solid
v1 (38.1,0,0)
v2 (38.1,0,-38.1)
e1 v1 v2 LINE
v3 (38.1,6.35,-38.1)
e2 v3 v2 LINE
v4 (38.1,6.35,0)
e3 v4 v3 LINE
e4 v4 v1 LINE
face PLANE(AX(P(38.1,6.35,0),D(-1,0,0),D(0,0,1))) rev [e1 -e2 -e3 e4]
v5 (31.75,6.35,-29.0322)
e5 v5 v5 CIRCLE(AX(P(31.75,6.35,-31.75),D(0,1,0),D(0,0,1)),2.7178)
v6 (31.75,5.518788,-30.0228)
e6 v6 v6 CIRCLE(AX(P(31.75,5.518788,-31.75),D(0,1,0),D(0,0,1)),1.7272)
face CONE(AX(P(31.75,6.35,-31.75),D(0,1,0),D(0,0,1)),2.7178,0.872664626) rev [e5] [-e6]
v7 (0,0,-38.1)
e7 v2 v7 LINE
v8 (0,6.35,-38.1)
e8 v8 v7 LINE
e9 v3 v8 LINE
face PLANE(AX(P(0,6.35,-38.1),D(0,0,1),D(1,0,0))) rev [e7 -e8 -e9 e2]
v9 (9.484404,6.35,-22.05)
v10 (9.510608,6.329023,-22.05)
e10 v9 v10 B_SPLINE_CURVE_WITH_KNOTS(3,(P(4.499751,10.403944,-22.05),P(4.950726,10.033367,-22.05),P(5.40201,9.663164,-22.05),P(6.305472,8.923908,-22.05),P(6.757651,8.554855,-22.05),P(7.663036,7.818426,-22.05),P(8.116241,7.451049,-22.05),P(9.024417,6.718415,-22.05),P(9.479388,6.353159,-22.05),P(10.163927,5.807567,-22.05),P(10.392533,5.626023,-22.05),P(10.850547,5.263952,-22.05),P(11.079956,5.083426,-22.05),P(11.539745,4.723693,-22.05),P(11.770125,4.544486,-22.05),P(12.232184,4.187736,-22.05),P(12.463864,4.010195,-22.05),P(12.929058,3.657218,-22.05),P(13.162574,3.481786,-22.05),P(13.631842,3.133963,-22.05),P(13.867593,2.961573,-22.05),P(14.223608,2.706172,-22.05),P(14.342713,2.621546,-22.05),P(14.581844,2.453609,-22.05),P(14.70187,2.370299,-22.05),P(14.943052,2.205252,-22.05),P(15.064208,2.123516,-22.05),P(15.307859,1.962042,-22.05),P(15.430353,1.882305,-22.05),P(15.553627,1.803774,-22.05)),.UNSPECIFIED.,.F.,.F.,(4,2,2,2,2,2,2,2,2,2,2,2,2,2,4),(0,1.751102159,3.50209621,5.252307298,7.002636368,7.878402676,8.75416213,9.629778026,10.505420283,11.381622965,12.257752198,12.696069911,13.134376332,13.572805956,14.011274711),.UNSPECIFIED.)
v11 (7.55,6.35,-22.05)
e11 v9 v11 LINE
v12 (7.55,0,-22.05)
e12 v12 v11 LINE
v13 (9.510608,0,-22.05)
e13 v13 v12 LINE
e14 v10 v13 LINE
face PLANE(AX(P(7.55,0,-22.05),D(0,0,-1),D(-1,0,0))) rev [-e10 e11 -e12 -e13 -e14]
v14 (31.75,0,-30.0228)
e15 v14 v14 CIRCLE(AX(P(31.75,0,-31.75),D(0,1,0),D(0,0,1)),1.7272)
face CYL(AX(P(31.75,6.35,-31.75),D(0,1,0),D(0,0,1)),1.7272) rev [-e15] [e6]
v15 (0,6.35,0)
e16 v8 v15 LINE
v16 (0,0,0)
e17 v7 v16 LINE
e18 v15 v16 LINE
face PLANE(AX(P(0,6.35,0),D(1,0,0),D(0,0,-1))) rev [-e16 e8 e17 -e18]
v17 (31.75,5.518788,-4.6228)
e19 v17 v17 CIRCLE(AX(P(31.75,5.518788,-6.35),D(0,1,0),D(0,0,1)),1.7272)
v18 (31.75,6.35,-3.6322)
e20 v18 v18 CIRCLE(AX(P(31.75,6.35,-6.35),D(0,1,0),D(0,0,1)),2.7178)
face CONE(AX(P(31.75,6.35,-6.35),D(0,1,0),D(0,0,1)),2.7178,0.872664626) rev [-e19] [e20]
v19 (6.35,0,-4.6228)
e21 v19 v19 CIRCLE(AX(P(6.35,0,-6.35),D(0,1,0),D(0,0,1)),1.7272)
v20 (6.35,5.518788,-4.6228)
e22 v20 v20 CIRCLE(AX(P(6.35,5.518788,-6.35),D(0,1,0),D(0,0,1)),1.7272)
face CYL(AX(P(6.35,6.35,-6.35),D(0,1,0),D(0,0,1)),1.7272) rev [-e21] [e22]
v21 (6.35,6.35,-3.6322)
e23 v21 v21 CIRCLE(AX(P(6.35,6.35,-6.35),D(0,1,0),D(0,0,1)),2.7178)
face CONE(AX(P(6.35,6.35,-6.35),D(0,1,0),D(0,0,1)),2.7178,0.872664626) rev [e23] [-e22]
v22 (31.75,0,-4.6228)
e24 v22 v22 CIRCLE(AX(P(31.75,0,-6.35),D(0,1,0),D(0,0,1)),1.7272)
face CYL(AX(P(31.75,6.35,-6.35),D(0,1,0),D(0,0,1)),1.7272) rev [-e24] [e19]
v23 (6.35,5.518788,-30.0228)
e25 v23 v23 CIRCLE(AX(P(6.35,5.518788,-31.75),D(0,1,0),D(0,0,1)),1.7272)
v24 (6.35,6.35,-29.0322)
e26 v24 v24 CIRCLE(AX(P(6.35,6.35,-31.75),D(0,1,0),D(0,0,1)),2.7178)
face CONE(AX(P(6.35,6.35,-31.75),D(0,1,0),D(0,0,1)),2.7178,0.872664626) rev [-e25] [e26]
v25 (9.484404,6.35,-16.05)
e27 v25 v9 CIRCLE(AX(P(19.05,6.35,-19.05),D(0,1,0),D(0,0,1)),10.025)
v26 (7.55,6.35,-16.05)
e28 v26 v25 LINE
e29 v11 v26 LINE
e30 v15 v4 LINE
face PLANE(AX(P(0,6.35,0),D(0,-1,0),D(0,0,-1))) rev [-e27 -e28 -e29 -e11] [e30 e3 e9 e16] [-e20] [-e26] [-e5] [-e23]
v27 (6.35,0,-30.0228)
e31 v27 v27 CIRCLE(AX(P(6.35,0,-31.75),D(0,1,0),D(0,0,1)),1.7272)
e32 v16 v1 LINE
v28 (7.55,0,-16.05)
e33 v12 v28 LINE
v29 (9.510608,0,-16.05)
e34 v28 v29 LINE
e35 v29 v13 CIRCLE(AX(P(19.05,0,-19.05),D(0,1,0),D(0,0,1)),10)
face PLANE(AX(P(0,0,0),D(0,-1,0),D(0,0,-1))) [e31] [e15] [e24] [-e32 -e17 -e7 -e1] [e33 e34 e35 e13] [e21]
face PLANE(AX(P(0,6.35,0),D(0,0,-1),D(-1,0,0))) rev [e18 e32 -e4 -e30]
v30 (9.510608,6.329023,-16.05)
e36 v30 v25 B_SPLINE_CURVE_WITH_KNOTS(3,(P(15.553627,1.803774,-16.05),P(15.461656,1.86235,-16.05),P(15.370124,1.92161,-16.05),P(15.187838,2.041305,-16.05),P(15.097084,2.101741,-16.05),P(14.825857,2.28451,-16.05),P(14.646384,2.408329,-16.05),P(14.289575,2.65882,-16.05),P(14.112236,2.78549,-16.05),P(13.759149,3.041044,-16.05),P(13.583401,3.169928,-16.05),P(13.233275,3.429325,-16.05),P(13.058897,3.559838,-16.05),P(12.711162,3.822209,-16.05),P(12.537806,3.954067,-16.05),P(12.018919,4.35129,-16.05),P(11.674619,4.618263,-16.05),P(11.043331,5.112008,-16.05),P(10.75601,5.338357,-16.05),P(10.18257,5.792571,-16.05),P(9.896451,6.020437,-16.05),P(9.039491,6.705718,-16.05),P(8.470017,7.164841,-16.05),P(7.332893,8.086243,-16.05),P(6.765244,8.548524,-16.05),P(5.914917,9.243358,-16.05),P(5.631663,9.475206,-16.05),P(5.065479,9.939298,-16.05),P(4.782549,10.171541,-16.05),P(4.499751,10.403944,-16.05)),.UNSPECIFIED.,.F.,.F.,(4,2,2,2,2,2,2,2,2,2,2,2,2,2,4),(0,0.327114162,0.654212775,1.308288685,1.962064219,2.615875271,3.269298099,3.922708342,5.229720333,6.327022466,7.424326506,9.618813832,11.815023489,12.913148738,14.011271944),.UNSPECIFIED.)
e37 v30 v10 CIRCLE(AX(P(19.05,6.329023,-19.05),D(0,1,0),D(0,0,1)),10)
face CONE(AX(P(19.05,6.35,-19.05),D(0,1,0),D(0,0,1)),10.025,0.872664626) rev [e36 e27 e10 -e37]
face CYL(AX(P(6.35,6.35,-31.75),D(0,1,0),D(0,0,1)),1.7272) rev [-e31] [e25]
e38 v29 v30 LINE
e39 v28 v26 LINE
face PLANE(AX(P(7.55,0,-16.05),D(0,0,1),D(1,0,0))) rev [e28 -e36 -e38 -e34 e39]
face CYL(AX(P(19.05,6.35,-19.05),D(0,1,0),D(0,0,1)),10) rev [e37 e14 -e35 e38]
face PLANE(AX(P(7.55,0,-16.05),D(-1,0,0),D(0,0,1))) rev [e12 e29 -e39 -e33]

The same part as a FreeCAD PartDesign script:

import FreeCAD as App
import Part
import Sketcher
Q = App.Units.Quantity

doc = App.newDocument("Part")
body = doc.addObject("PartDesign::Body", "Body")

# Sketch on XZ plane
sketch1 = body.newObject("Sketcher::SketchObject", "Sketch")
sketch1.AttachmentSupport = (doc.getObject("XZ_Plane"), [""])
sketch1.MapMode = "FlatFace"
sketch1.addGeometry(Part.LineSegment(App.Vector(0, -38, 0), App.Vector(0, 0, 0)), False)
sketch1.addGeometry(Part.LineSegment(App.Vector(0, 0, 0), App.Vector(38, 0, 0)), False)
sketch1.addGeometry(Part.LineSegment(App.Vector(38, 0, 0), App.Vector(38, -38, 0)), False)
sketch1.addGeometry(Part.LineSegment(App.Vector(38, -38, 0), App.Vector(0, -38, 0)), False)
sketch1.addConstraint(Sketcher.Constraint("Coincident", 0, 2, 1, 1))
sketch1.addConstraint(Sketcher.Constraint("Coincident", 1, 2, 2, 1))
sketch1.addConstraint(Sketcher.Constraint("Coincident", 2, 2, 3, 1))
sketch1.addConstraint(Sketcher.Constraint("Coincident", 3, 2, 0, 1))
sketch1.addConstraint(Sketcher.Constraint("Vertical", 0))
sketch1.addConstraint(Sketcher.Constraint("Horizontal", 1))
sketch1.addConstraint(Sketcher.Constraint("Vertical", 2))
sketch1.addConstraint(Sketcher.Constraint("Horizontal", 3))
sketch1.addConstraint(Sketcher.Constraint("Coincident", 0, 2, -1, 1))
sketch1.addConstraint(Sketcher.Constraint("Equal", 3, 0))
sketch1.addConstraint(Sketcher.Constraint("DistanceX", 1, 1, 1, 2, Q("1.5 in")))
pad1 = body.newObject("PartDesign::Pad", "Pad")
pad1.Profile = sketch1
pad1.Length = Q("0.25 in")
pad1.Reversed = True

# Sketch on XZ plane
sketch2 = body.newObject("Sketcher::SketchObject", "Sketch001")
sketch2.AttachmentSupport = (doc.getObject("XZ_Plane"), [""])
sketch2.MapMode = "FlatFace"
sketch2.AttachmentOffset = App.Placement(App.Vector(0, 0, -0.25 * 25.4), App.Rotation())
sketch2.addGeometry(Part.Circle(App.Vector(31.8, -31.8, 0), App.Vector(0, 0, 1), 1.7), False)
sketch2.addGeometry(Part.Circle(App.Vector(6.3, -31.8, 0), App.Vector(0, 0, 1), 1.7), False)
sketch2.addGeometry(Part.Circle(App.Vector(6.3, -6.3, 0), App.Vector(0, 0, 1), 1.7), False)
sketch2.addGeometry(Part.Circle(App.Vector(31.8, -6.3, 0), App.Vector(0, 0, 1), 1.7), False)
sketch2.addConstraint(Sketcher.Constraint("Equal", 0, 1))
sketch2.addConstraint(Sketcher.Constraint("Equal", 1, 2))
sketch2.addConstraint(Sketcher.Constraint("Equal", 2, 3))
sketch2.addConstraint(Sketcher.Constraint("Horizontal", 0, 3, 1, 3))
sketch2.addConstraint(Sketcher.Constraint("Horizontal", 2, 3, 3, 3))
sketch2.addConstraint(Sketcher.Constraint("Vertical", 1, 3, 2, 3))
sketch2.addConstraint(Sketcher.Constraint("Vertical", 0, 3, 3, 3))
sketch2.addConstraint(Sketcher.Constraint("Diameter", 0, Q("0.136 in")))
sketch2.addConstraint(Sketcher.Constraint("DistanceX", 1, 3, 0, 3, Q("1 in")))
sketch2.addConstraint(Sketcher.Constraint("DistanceY", 1, 3, 2, 3, Q("1 in")))
sketch2.addConstraint(Sketcher.Constraint("DistanceX", -1, 1, 0, 3, Q("1.25 in")))
sketch2.addConstraint(Sketcher.Constraint("DistanceY", 0, 3, -1, 1, Q("1.25 in")))
doc.recompute()
hole = body.newObject("PartDesign::Hole", "Hole")
hole.Profile = sketch2
hole.ThreadType = "None"
hole.Diameter = Q("0.136 in")
hole.DepthType = "ThroughAll"
hole.HoleCutType = "Countersink"
hole.HoleCutDiameter = Q("0.214 in")
hole.HoleCutCountersinkAngle = 100
hole.Reversed = True

# Sketch on YZ plane
sketch3 = body.newObject("Sketcher::SketchObject", "Sketch002")
sketch3.AttachmentSupport = (doc.getObject("YZ_Plane"), [""])
sketch3.MapMode = "FlatFace"
sketch3.AttachmentOffset = App.Placement(App.Vector(0, 0, 0.75 * 25.4), App.Rotation())
sketch3.addGeometry(Part.LineSegment(App.Vector(0, -19.05, 0), App.Vector(6.35, -19.05, 0)), False)
sketch3.addGeometry(Part.LineSegment(App.Vector(6.35, -19.05, 0), App.Vector(6.35, -9.025, 0)), False)
sketch3.addGeometry(Part.LineSegment(App.Vector(6.35, -9.025, 0), App.Vector(6.329, -9.05, 0)), False)
sketch3.addGeometry(Part.LineSegment(App.Vector(6.329, -9.05, 0), App.Vector(0, -9.05, 0)), False)
sketch3.addGeometry(Part.LineSegment(App.Vector(0, -9.05, 0), App.Vector(0, -19.05, 0)), False)
sketch3.addGeometry(Part.LineSegment(App.Vector(6.35, -19.05, 0), App.Vector(0, -19.05, 0)), True)  # axis
sketch3.addConstraint(Sketcher.Constraint("Coincident", 0, 2, 1, 1))
sketch3.addConstraint(Sketcher.Constraint("Coincident", 1, 2, 2, 1))
sketch3.addConstraint(Sketcher.Constraint("Coincident", 2, 2, 3, 1))
sketch3.addConstraint(Sketcher.Constraint("Coincident", 3, 2, 4, 1))
sketch3.addConstraint(Sketcher.Constraint("Coincident", 4, 2, 0, 1))
sketch3.addConstraint(Sketcher.Constraint("Horizontal", 0))
sketch3.addConstraint(Sketcher.Constraint("Vertical", 1))
sketch3.addConstraint(Sketcher.Constraint("Horizontal", 3))
sketch3.addConstraint(Sketcher.Constraint("Vertical", 4))
sketch3.addConstraint(Sketcher.Constraint("Horizontal", 5))
sketch3.addConstraint(Sketcher.Constraint("Coincident", 5, 1, 0, 2))
sketch3.addConstraint(Sketcher.Constraint("PointOnObject", 3, 2, -2))
sketch3.addConstraint(Sketcher.Constraint("PointOnObject", 5, 2, -2))
sketch3.addConstraint(Sketcher.Constraint("Angle", 2, Q("-130 deg")))
sketch3.addConstraint(Sketcher.Constraint("DistanceX", 0, 1, 0, 2, Q("0.25 in")))
sketch3.addConstraint(Sketcher.Constraint("DistanceY", 0, 2, -1, 1, Q("0.75 in")))
sketch3.addConstraint(Sketcher.Constraint("DistanceY", 1, 1, 1, 2, Q("10.025 mm")))
sketch3.addConstraint(Sketcher.Constraint("DistanceY", 4, 2, 4, 1, Q("10 mm")))
groove = body.newObject("PartDesign::Groove", "Groove")
groove.Profile = sketch3
groove.ReferenceAxis = (sketch3, ["Axis0"])
groove.Angle = 360

# Sketch on XZ plane
sketch4 = body.newObject("Sketcher::SketchObject", "Sketch003")
sketch4.AttachmentSupport = (doc.getObject("XZ_Plane"), [""])
sketch4.MapMode = "FlatFace"
sketch4.AttachmentOffset = App.Placement(App.Vector(0, 0, -0.25 * 25.4), App.Rotation())
sketch4.addGeometry(Part.LineSegment(App.Vector(8, -22, 0), App.Vector(8, -16, 0)), False)
sketch4.addGeometry(Part.LineSegment(App.Vector(8, -16, 0), App.Vector(14, -16, 0)), False)
sketch4.addGeometry(Part.LineSegment(App.Vector(14, -16, 0), App.Vector(14, -22, 0)), False)
sketch4.addGeometry(Part.LineSegment(App.Vector(14, -22, 0), App.Vector(8, -22, 0)), False)
sketch4.addConstraint(Sketcher.Constraint("Coincident", 0, 2, 1, 1))
sketch4.addConstraint(Sketcher.Constraint("Coincident", 1, 2, 2, 1))
sketch4.addConstraint(Sketcher.Constraint("Coincident", 2, 2, 3, 1))
sketch4.addConstraint(Sketcher.Constraint("Coincident", 3, 2, 0, 1))
sketch4.addConstraint(Sketcher.Constraint("Vertical", 0))
sketch4.addConstraint(Sketcher.Constraint("Horizontal", 1))
sketch4.addConstraint(Sketcher.Constraint("Vertical", 2))
sketch4.addConstraint(Sketcher.Constraint("Horizontal", 3))
sketch4.addConstraint(Sketcher.Constraint("Equal", 3, 0))
sketch4.addConstraint(Sketcher.Constraint("DistanceX", 1, 1, 1, 2, Q("6 mm")))
sketch4.addConstraint(Sketcher.Constraint("DistanceX", -1, 1, 0, 2, Q("7.55 mm")))
sketch4.addConstraint(Sketcher.Constraint("DistanceY", 0, 2, -1, 1, Q("16.05 mm")))
pocket1 = body.newObject("PartDesign::Pocket", "Pocket")
pocket1.Profile = sketch4
pocket1.Type = "ThroughAll"
pocket1.Reversed = True

doc.recompute()
